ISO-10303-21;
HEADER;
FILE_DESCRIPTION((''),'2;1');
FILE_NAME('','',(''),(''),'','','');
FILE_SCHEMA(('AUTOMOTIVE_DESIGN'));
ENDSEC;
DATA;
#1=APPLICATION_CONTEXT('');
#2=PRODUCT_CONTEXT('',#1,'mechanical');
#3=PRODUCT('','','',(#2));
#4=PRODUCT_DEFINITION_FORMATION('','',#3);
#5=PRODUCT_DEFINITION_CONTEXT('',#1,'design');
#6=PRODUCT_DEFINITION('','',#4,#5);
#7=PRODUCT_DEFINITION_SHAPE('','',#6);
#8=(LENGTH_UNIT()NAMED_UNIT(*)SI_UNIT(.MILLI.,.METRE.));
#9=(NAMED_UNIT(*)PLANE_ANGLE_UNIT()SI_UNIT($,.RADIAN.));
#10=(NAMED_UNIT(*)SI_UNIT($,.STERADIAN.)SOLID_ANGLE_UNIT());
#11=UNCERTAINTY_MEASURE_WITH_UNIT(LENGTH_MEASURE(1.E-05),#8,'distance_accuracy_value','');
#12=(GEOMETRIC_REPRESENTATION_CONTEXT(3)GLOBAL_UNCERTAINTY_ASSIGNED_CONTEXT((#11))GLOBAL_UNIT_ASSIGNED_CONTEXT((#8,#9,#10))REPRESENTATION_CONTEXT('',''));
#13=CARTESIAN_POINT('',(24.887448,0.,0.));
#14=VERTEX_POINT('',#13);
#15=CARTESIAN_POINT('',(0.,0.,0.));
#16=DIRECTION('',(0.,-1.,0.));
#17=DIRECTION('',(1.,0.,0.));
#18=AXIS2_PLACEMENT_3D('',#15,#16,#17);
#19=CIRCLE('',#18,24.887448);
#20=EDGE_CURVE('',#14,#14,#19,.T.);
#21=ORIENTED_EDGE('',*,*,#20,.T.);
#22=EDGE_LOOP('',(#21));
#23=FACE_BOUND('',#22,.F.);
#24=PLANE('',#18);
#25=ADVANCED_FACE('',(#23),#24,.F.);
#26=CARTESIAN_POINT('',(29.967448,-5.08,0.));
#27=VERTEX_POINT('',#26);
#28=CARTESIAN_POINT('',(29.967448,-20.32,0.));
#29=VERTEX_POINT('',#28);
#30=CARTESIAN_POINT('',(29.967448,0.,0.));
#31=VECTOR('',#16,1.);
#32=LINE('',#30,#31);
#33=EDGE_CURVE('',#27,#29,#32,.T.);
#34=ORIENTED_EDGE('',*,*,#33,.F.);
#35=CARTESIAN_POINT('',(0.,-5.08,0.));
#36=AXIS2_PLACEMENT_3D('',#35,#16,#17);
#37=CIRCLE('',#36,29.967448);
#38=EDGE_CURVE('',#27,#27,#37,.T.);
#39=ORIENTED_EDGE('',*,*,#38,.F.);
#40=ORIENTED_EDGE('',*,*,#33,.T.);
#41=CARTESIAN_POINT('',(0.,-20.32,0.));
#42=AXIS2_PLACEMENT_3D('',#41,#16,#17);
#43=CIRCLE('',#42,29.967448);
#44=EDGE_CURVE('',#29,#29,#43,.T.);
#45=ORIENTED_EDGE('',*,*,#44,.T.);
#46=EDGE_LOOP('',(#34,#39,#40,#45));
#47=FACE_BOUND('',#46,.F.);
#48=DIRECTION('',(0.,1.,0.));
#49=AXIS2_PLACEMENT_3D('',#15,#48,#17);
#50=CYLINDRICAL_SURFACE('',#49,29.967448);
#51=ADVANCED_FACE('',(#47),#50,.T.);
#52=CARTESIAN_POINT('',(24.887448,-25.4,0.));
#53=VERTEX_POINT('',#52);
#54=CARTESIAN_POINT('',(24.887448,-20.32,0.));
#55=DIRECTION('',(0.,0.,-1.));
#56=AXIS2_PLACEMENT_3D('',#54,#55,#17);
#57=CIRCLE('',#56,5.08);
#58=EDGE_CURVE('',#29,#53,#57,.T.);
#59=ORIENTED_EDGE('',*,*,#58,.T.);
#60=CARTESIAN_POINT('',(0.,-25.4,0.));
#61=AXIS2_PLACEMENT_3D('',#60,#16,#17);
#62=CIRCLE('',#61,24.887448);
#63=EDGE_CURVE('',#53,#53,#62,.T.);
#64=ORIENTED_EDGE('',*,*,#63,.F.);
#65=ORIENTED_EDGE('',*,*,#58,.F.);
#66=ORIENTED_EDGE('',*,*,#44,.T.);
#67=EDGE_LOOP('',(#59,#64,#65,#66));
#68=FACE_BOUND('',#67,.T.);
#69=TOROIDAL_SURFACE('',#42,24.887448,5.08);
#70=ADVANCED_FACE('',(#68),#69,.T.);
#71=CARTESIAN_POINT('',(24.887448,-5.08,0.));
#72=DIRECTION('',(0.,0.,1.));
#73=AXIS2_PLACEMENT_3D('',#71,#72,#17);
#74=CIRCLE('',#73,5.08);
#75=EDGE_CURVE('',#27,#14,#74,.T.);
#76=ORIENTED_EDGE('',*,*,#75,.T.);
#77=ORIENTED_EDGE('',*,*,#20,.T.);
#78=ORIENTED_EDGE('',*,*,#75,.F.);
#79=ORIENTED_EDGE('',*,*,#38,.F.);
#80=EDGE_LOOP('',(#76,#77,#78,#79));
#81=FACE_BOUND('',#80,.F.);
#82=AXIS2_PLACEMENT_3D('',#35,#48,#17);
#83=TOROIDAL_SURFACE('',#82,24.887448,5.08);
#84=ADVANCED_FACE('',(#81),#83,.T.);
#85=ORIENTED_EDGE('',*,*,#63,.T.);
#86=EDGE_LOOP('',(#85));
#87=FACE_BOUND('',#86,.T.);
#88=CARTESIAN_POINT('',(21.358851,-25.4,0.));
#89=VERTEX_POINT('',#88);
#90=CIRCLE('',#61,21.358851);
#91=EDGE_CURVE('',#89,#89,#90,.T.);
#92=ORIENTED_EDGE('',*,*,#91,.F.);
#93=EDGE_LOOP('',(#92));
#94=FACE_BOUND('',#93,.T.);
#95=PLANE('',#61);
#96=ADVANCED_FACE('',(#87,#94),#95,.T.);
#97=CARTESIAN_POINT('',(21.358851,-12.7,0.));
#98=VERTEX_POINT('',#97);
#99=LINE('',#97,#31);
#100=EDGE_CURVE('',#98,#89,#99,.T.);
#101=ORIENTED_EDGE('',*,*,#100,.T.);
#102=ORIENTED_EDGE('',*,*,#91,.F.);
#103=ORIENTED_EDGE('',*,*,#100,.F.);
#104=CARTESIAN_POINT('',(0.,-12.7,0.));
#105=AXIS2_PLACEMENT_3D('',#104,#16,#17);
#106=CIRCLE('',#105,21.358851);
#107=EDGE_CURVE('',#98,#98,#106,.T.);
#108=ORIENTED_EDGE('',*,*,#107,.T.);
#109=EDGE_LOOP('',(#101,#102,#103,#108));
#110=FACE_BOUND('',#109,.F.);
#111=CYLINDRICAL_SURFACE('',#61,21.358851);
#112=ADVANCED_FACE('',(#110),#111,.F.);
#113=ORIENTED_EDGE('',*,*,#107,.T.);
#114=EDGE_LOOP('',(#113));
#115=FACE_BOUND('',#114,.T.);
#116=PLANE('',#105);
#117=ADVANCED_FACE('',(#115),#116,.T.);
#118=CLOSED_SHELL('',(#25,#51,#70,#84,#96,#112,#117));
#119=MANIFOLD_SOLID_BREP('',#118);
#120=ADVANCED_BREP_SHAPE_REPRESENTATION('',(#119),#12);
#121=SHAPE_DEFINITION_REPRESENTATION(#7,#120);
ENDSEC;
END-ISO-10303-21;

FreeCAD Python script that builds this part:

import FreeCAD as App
import Part
import Sketcher

V = App.Vector
Q = App.Units.Quantity


def edges_at(feature, points):
    """Names of the edges that pass closest to the given points."""
    edges = feature.Shape.Edges
    near = lambda p: min(range(len(edges)), key=lambda i: edges[i].distToShape(Part.Vertex(*p))[0])
    return sorted({f"Edge{near(p) + 1}" for p in points})

doc = App.newDocument("Part")
body = doc.addObject("PartDesign::Body", "Body")

# Sketch on XZ plane
sketch1 = body.newObject("Sketcher::SketchObject", "Sketch")
sketch1.AttachmentSupport = (doc.getObject("XZ_Plane"), [""])
sketch1.MapMode = "FlatFace"
sketch1.addGeometry(Part.Circle(V(0, 0, 0), V(0, 0, 1), 29.967448), False)
sketch1.addConstraint([
    Sketcher.Constraint("Coincident", 0, 3, -1, 1),
    Sketcher.Constraint("Diameter", 0, Q("59.934896 mm")),
])
pad1 = body.newObject("PartDesign::Pad", "Pad")
pad1.Profile = sketch1
pad1.Length = Q("1 in")
doc.recompute()

fillet = body.newObject("PartDesign::Fillet", "Fillet")
fillet.Base = (pad1, edges_at(pad1, [(-29.967, 0, 0), (-29.967, -25.4, 0)]))
fillet.Radius = Q("0.2 in")

# Sketch on XZ plane
sketch2 = body.newObject("Sketcher::SketchObject", "Sketch001")
sketch2.AttachmentSupport = (doc.getObject("XZ_Plane"), [""])
sketch2.MapMode = "FlatFace"
sketch2.AttachmentOffset = App.Placement(V(0, 0, 1 * 25.4), App.Rotation())
sketch2.addGeometry(Part.Circle(V(0, 0, 0), V(0, 0, 1), 21.358851), False)
sketch2.addConstraint([
    Sketcher.Constraint("Coincident", 0, 3, -1, 1),
    Sketcher.Constraint("Diameter", 0, Q("42.717702 mm")),
])
pocket1 = body.newObject("PartDesign::Pocket", "Pocket")
pocket1.Profile = sketch2
pocket1.Length = Q("1 in")
pocket1.Midplane = True

doc.recompute()
